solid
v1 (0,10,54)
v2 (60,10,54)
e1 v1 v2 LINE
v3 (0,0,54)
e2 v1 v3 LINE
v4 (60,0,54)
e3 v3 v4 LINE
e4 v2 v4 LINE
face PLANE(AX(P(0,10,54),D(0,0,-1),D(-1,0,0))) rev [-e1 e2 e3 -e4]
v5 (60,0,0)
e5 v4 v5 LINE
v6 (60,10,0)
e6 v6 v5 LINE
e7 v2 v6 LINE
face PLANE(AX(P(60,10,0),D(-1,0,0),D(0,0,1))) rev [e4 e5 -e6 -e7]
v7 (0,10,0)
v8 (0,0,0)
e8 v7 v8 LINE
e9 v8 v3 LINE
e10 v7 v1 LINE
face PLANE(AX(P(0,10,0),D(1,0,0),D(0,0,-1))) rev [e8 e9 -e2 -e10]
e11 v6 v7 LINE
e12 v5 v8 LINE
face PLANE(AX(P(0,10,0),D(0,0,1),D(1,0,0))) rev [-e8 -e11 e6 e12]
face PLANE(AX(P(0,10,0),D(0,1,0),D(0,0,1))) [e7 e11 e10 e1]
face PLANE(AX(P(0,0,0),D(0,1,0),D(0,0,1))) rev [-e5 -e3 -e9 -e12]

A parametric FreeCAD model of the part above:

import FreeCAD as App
import Part
import Sketcher


def add_polygon(sketch, points):
    """Adds a closed chain of lines whose ends are joined by coincident constraints."""
    first, n = sketch.GeometryCount, len(points)
    for a, b in zip(points, points[1:] + points[:1]):
        sketch.addGeometry(Part.LineSegment(App.Vector(*a, 0), App.Vector(*b, 0)), False)
    for i in range(n):
        sketch.addConstraint(Sketcher.Constraint("Coincident", first + i, 2, first + (i + 1) % n, 1))

doc = App.newDocument("Part")
body = doc.addObject("PartDesign::Body", "Body")

# Sketch on XZ plane
sketch1 = body.newObject("Sketcher::SketchObject", "Sketch")
sketch1.AttachmentSupport = (doc.getObject("XZ_Plane"), [""])
sketch1.MapMode = "FlatFace"
add_polygon(sketch1, [(0, 0), (0, 54), (60, 54), (60, 0)])  # lines 0-3
sketch1.addConstraint([
    Sketcher.Constraint("Vertical", 0),
    Sketcher.Constraint("Horizontal", 1),
    Sketcher.Constraint("Vertical", 2),
    Sketcher.Constraint("Horizontal", 3),
    Sketcher.Constraint("Coincident", 3, 2, -1, 1),
    Sketcher.Constraint("DistanceX", 1, 1, 1, 2, 60.0),
    Sketcher.Constraint("DistanceY", 0, 1, 0, 2, 54.0),
])
pad1 = body.newObject("PartDesign::Pad", "Pad")
pad1.Profile = sketch1
pad1.Length = 10
pad1.Reversed = True

doc.recompute()
